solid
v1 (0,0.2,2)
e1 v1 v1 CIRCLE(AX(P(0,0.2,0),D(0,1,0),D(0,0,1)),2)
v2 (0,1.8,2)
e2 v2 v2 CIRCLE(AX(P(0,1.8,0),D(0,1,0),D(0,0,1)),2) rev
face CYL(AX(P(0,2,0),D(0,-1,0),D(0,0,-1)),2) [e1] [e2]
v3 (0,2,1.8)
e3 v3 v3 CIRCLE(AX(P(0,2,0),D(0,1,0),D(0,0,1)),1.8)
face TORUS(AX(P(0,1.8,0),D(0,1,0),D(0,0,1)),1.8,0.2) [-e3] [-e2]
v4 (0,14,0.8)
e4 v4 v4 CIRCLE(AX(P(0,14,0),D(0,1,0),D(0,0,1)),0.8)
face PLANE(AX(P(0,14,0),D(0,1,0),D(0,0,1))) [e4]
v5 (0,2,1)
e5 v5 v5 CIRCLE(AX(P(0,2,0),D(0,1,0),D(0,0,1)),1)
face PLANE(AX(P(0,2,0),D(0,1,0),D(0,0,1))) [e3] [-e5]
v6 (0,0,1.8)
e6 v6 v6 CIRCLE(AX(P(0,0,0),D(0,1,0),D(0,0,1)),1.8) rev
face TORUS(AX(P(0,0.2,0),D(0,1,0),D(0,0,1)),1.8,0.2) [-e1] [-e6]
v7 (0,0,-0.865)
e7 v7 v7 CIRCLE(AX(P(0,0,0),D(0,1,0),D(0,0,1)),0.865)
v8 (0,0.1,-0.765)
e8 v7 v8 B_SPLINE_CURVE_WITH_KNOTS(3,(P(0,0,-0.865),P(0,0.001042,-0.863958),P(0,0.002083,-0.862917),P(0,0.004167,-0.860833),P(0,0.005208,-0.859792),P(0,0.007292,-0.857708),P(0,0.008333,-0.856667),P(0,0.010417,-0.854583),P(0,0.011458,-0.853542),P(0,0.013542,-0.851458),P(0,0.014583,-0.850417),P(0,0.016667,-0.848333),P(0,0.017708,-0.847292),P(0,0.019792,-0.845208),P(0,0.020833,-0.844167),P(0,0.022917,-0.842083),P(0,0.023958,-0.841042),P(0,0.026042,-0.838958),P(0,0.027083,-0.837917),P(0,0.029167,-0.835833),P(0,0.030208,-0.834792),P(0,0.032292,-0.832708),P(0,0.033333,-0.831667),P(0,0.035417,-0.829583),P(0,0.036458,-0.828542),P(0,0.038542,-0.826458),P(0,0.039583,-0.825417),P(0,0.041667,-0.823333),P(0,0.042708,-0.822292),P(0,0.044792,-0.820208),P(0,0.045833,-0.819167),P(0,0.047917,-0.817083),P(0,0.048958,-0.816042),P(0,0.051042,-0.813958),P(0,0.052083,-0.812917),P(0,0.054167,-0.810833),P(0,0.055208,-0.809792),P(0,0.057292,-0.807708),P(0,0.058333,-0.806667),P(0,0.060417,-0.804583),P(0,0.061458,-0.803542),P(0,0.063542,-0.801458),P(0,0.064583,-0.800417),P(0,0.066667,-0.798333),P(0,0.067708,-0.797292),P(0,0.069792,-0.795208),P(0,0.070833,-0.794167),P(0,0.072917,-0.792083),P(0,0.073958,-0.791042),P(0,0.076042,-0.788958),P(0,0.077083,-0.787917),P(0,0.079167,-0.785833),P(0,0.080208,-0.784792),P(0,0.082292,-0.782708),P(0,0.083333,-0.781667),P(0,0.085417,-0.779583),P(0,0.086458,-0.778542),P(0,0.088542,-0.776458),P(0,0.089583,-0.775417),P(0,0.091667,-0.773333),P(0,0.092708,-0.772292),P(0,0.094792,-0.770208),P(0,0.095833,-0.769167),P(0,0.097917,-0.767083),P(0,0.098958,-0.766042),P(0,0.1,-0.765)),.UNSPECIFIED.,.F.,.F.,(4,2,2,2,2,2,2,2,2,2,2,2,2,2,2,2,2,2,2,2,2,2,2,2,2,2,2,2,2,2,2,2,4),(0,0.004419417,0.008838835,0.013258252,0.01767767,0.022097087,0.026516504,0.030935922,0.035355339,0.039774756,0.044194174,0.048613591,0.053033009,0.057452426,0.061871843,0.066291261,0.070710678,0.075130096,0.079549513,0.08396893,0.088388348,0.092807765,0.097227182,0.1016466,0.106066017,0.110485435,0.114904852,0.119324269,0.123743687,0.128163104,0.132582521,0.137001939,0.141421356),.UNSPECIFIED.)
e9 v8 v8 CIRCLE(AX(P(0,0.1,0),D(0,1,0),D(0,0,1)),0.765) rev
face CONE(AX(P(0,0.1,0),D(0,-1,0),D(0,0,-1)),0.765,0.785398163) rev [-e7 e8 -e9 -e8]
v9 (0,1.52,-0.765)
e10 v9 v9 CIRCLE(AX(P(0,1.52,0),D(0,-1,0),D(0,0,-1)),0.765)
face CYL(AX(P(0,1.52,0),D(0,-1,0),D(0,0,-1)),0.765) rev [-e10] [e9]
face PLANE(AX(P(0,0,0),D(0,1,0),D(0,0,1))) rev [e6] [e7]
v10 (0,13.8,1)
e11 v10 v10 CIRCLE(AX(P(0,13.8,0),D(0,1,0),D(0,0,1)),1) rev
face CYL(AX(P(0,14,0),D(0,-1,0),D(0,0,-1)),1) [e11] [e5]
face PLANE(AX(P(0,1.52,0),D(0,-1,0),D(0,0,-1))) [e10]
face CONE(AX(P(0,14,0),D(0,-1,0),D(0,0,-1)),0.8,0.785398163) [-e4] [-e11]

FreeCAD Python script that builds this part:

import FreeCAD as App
import Part
import Sketcher
from FreeCAD import Vector


def edges_at(feature, points):
    """Names of the edges that pass closest to the given points."""
    edges = feature.Shape.Edges
    near = lambda p: min(range(len(edges)), key=lambda i: edges[i].distToShape(Part.Vertex(*p))[0])
    return sorted({f"Edge{near(p) + 1}" for p in points})

doc = App.newDocument("Part")
body = doc.addObject("PartDesign::Body", "Body")

# Sketch on XZ plane
sketch1 = doc.addObject("Sketcher::SketchObject", "Sketch")
body.addObject(sketch1)
sketch1.AttachmentSupport = (doc.XZ_Plane, [""])
sketch1.MapMode = "FlatFace"
sketch1.addGeometry(Part.Circle(Vector(0, 0, 0), Vector(0, 0, 1), 2), False)
sketch1.addConstraint([
    Sketcher.Constraint("Coincident", 0, 3, -1, 1),
    Sketcher.Constraint("Diameter", 0, 4.0),
])
pad1 = doc.addObject("PartDesign::Pad", "Pad")
body.addObject(pad1)
pad1.Profile = sketch1
pad1.Length = 2
pad1.Reversed = True

# Sketch on XZ plane
sketch2 = doc.addObject("Sketcher::SketchObject", "Sketch001")
body.addObject(sketch2)
sketch2.AttachmentSupport = (doc.XZ_Plane, [""])
sketch2.MapMode = "FlatFace"
sketch2.AttachmentOffset = App.Placement(Vector(0, 0, -2), App.Rotation())
sketch2.addGeometry(Part.Circle(Vector(0, 0, 0), Vector(0, 0, 1), 1), False)
sketch2.addConstraint([
    Sketcher.Constraint("Coincident", 0, 3, -1, 1),
    Sketcher.Constraint("Diameter", 0, 2.0),
])
pad2 = doc.addObject("PartDesign::Pad", "Pad001")
body.addObject(pad2)
pad2.Profile = sketch2
pad2.Length = 12
pad2.Reversed = True
doc.recompute()

fillet = doc.addObject("PartDesign::Fillet", "Fillet")
body.addObject(fillet)
fillet.Base = (pad2, edges_at(pad2, [(0, 0, -2), (0, 2, -2)]))
fillet.Radius = 0.2

# Sketch on XZ plane
sketch3 = doc.addObject("Sketcher::SketchObject", "Sketch002")
body.addObject(sketch3)
sketch3.AttachmentSupport = (doc.XZ_Plane, [""])
sketch3.MapMode = "FlatFace"
sketch3.addGeometry(Part.Circle(Vector(0, 0, 0), Vector(0, 0, 1), 0.8), False)
sketch3.addConstraint([
    Sketcher.Constraint("Coincident", 0, 3, -1, 1),
    Sketcher.Constraint("Diameter", 0, 1.53),
])
pocket1 = doc.addObject("PartDesign::Pocket", "Pocket")
body.addObject(pocket1)
pocket1.Profile = sketch3
pocket1.Length = 1.52
doc.recompute()

chamfer = doc.addObject("PartDesign::Chamfer", "Chamfer")
body.addObject(chamfer)
chamfer.Base = (pocket1, edges_at(pocket1, [(0, 0, 0.765)]))
chamfer.Size = 0.1
doc.recompute()

chamfer2 = doc.addObject("PartDesign::Chamfer", "Chamfer001")
body.addObject(chamfer2)
chamfer2.Base = (chamfer, edges_at(chamfer, [(0, 14, -1)]))
chamfer2.Size = 0.2

doc.recompute()
